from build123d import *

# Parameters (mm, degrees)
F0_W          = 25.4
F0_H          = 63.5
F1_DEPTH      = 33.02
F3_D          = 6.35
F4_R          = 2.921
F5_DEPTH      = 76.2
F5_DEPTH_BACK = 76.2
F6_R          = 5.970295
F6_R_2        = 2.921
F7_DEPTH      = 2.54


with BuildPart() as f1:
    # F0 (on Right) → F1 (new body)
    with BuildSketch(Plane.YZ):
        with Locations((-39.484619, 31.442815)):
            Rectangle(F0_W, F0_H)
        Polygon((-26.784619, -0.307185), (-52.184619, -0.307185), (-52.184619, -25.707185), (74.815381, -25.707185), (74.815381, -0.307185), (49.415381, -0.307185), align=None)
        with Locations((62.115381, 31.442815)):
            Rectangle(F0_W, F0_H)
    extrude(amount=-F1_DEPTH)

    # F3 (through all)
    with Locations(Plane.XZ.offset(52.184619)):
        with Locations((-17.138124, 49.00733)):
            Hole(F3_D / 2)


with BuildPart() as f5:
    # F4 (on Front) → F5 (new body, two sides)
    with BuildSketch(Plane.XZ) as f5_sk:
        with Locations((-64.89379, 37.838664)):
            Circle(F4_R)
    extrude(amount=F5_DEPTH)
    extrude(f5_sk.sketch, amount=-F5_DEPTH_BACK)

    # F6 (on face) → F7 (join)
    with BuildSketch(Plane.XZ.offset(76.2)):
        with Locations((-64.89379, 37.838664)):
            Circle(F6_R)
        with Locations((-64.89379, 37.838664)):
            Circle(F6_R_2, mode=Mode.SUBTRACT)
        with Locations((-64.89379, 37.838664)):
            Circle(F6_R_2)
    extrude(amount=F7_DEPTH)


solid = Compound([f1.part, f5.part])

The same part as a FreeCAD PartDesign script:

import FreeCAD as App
import Part
import Sketcher
Q = App.Units.Quantity


def add_polygon(sketch, points):
    """Adds a closed chain of lines whose ends are joined by coincident constraints."""
    first, n = sketch.GeometryCount, len(points)
    for a, b in zip(points, points[1:] + points[:1]):
        sketch.addGeometry(Part.LineSegment(App.Vector(*a, 0), App.Vector(*b, 0)), False)
    for i in range(n):
        sketch.addConstraint(Sketcher.Constraint("Coincident", first + i, 2, first + (i + 1) % n, 1))

doc = App.newDocument("Part")
body = doc.addObject("PartDesign::Body", "Body")

sketch1 = body.newObject("Sketcher::SketchObject", "Sketch")
sketch1.AttachmentSupport = (doc.getObject("YZ_Plane"), [""])
sketch1.MapMode = "FlatFace"
add_polygon(sketch1, [(-52.184619, 63.192815), (-52.184619, -25.707185), (74.815381, -25.707185), (74.815381, 63.192815), (49.415381, 63.192815), (49.415381, -0.307185), (-26.784619, -0.307185), (-26.784619, 63.192815)])
sketch1.addConstraint([
    Sketcher.Constraint("Vertical", 0),
    Sketcher.Constraint("Horizontal", 1),
    Sketcher.Constraint("Vertical", 2),
    Sketcher.Constraint("Horizontal", 3),
    Sketcher.Constraint("Vertical", 4),
    Sketcher.Constraint("Horizontal", 5),
    Sketcher.Constraint("Vertical", 6),
    Sketcher.Constraint("Horizontal", 7),
    Sketcher.Constraint("Horizontal", 3, 2, 6, 2),
    Sketcher.Constraint("Equal", 3, 7),
    Sketcher.Constraint("DistanceX", 1, 1, 1, 2, Q("5 in")),
    Sketcher.Constraint("DistanceX", 3, 2, 3, 1, Q("1 in")),
    Sketcher.Constraint("DistanceY", 0, 2, 0, 1, Q("3.5 in")),
    Sketcher.Constraint("DistanceY", 4, 2, 4, 1, Q("2.5 in")),
    Sketcher.Constraint("DistanceX", 0, 2, -1, 1, 52.184619),
    Sketcher.Constraint("DistanceY", 0, 2, -1, 1, 25.707185),
])
pad1 = body.newObject("PartDesign::Pad", "Pad")
pad1.Profile = sketch1
pad1.Length = Q("1.3 in")
pad1.Reversed = True

sketch2 = body.newObject("Sketcher::SketchObject", "Sketch001")
sketch2.AttachmentSupport = (doc.getObject("XZ_Plane"), [""])
sketch2.MapMode = "FlatFace"
sketch2.AttachmentOffset = App.Placement(App.Vector(0, 0, 52.184619), App.Rotation())
sketch2.addGeometry(Part.Circle(App.Vector(-17.138124, 49.00733, 0), App.Vector(0, 0, 1), 3.175), False)
sketch2.addConstraint([
    Sketcher.Constraint("Diameter", 0, Q("0.25 in")),
    Sketcher.Constraint("DistanceY", -1, 1, 0, 3, 49.00733),
    Sketcher.Constraint("DistanceX", 0, 3, -1, 1, 17.138124),
])
doc.recompute()
hole = body.newObject("PartDesign::Hole", "Hole")
hole.Profile = sketch2
hole.ThreadType = "None"
hole.Diameter = Q("0.25 in")
hole.DepthType = "ThroughAll"
body2 = doc.addObject("PartDesign::Body", "Body001")

sketch3 = body2.newObject("Sketcher::SketchObject", "Sketch002")
sketch3.AttachmentSupport = (doc.getObject("XZ_Plane001"), [""])
sketch3.MapMode = "FlatFace"
sketch3.addGeometry(Part.Circle(App.Vector(-64.89379, 37.838664, 0), App.Vector(0, 0, 1), 2.921), False)
sketch3.addConstraint([
    Sketcher.Constraint("Diameter", 0, Q("0.23 in")),
    Sketcher.Constraint("DistanceX", 0, 3, -1, 1, 64.89379),
    Sketcher.Constraint("DistanceY", -1, 1, 0, 3, 37.838664),
])
pad2 = body2.newObject("PartDesign::Pad", "Pad001")
pad2.Profile = sketch3
pad2.Type = "TwoLengths"
pad2.Length = Q("3 in")
pad2.Length2 = Q("3 in")

sketch4 = body2.newObject("Sketcher::SketchObject", "Sketch003")
sketch4.AttachmentSupport = (doc.getObject("XZ_Plane001"), [""])
sketch4.MapMode = "FlatFace"
sketch4.AttachmentOffset = App.Placement(App.Vector(0, 0, 3 * 25.4), App.Rotation())
sketch4.addGeometry(Part.Circle(App.Vector(-64.89379, 37.838664, 0), App.Vector(0, 0, 1), 5.970295), False)
sketch4.addConstraint([
    Sketcher.Constraint("Diameter", 0, 11.94059),
    Sketcher.Constraint("DistanceX", 0, 3, -1, 1, 64.89379),
    Sketcher.Constraint("DistanceY", -1, 1, 0, 3, 37.838664),
])
pad3 = body2.newObject("PartDesign::Pad", "Pad002")
pad3.Profile = sketch4
pad3.Length = Q("0.1 in")

doc.recompute()
